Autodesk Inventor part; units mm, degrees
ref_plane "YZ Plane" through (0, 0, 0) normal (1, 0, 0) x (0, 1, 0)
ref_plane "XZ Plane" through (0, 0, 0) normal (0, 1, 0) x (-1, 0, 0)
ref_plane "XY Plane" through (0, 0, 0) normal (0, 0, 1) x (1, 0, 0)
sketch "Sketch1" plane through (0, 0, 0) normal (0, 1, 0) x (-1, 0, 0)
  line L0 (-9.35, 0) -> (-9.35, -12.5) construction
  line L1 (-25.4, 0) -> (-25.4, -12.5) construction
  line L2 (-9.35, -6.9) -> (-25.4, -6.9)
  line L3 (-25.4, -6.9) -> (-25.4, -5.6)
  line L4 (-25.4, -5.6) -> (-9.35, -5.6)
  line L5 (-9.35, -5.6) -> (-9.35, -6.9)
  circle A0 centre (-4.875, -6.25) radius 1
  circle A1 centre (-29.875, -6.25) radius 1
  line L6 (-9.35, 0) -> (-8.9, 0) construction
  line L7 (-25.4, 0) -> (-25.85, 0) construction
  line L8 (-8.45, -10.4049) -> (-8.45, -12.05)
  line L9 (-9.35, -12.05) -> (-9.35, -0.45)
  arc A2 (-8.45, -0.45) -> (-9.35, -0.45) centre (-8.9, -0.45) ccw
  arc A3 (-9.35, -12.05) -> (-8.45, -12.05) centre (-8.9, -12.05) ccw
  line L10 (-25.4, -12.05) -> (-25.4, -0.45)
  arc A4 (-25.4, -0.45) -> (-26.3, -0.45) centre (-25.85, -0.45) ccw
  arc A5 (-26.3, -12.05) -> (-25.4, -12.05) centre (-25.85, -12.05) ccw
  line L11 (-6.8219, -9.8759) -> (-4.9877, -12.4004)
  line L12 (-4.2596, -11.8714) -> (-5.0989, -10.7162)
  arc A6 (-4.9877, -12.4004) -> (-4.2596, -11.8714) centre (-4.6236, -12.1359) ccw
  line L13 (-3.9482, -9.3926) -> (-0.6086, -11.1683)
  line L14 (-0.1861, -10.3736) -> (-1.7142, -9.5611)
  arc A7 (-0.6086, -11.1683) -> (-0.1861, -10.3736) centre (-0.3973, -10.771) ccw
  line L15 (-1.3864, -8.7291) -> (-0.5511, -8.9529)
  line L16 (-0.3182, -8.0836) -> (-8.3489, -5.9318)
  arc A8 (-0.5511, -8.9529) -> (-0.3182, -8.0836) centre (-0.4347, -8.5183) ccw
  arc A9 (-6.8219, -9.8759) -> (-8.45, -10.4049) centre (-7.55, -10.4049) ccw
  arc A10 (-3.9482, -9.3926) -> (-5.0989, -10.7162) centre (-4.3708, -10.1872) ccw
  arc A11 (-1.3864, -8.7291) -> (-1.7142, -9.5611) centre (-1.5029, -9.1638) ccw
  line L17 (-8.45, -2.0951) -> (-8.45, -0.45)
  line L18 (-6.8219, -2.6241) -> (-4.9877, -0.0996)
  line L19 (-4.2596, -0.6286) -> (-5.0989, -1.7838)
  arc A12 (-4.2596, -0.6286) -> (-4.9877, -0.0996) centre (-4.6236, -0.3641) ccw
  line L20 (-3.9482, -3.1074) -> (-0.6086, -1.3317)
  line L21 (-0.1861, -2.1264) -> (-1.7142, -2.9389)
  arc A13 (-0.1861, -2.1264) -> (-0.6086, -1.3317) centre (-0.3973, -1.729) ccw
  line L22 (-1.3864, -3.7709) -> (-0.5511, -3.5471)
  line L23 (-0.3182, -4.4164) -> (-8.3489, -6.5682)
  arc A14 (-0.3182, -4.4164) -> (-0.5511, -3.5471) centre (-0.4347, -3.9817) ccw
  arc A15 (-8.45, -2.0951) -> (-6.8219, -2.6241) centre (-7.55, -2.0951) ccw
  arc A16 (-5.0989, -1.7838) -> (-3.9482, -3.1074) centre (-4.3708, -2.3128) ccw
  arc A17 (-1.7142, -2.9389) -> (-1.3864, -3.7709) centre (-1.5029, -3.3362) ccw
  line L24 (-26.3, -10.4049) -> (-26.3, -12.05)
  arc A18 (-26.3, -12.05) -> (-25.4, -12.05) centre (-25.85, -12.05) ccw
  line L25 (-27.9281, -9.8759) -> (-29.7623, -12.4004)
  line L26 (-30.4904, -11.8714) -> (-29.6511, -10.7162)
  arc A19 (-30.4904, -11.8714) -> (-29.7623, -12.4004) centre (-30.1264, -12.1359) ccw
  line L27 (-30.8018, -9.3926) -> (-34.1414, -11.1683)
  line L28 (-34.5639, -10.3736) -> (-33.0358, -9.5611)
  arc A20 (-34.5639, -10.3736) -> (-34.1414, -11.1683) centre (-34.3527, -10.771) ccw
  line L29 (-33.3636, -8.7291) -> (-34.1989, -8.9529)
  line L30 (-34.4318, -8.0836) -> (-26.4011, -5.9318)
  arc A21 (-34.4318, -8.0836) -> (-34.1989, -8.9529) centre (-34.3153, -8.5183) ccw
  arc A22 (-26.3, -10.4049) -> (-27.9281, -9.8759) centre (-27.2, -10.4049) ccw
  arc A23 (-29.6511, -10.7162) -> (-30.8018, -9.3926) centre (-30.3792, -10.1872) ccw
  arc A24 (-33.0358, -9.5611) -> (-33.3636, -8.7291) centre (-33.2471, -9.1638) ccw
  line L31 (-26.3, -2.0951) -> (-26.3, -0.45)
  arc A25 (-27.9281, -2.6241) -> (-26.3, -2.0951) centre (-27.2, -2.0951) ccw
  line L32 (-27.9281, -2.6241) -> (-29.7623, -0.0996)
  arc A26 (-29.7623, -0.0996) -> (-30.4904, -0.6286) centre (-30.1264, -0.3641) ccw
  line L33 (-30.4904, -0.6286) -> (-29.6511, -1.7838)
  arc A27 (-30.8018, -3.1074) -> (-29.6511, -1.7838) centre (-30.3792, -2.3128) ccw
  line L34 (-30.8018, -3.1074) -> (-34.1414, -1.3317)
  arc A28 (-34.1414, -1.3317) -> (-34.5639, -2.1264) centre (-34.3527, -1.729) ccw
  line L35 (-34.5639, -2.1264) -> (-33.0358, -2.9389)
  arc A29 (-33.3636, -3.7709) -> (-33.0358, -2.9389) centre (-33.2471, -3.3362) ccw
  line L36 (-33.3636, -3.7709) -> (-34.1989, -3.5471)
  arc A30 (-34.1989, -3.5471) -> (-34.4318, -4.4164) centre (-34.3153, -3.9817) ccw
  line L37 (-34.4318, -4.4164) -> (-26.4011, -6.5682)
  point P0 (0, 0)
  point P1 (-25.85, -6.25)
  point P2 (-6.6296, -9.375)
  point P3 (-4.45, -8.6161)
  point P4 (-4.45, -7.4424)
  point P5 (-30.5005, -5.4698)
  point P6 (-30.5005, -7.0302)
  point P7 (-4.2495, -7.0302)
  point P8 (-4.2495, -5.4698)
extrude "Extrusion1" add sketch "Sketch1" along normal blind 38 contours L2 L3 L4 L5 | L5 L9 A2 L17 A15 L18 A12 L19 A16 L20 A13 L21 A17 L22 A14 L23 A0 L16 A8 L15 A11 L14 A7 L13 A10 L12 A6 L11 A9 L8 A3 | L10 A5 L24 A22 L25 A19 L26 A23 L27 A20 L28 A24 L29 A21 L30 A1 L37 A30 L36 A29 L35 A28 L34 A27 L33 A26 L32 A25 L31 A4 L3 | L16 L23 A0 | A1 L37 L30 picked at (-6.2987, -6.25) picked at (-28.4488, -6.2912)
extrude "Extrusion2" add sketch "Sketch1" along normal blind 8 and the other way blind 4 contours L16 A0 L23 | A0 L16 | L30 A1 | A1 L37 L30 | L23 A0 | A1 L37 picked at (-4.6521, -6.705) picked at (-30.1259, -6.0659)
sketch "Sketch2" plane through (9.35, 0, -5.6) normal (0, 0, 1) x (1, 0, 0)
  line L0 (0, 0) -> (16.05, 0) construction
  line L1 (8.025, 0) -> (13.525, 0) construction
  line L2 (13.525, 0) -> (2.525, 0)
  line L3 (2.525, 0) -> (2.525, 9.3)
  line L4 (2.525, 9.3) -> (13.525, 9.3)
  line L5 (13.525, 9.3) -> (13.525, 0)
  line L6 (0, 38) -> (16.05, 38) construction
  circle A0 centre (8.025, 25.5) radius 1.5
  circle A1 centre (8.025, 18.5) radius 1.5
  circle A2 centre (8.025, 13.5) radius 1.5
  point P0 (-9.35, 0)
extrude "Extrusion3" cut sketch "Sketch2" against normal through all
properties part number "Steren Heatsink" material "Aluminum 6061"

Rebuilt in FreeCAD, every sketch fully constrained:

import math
import FreeCAD as App
import Part
import Sketcher
from FreeCAD import Vector
Q = App.Units.Quantity


def add_polygon(sketch, points):
    """Adds a closed chain of lines whose ends are joined by coincident constraints."""
    first, n = sketch.GeometryCount, len(points)
    for a, b in zip(points, points[1:] + points[:1]):
        sketch.addGeometry(Part.LineSegment(App.Vector(*a, 0), App.Vector(*b, 0)), False)
    for i in range(n):
        sketch.addConstraint(Sketcher.Constraint("Coincident", first + i, 2, first + (i + 1) % n, 1))

doc = App.newDocument("Part")
body = doc.addObject("PartDesign::Body", "Body")

sketch1 = body.newObject("Sketcher::SketchObject", "Sketch")
sketch1.AttachmentSupport = (doc.getObject("XZ_Plane"), [""])
sketch1.MapMode = "FlatFace"
sketch1.addGeometry([
    Part.LineSegment(Vector(25.4, -6.9, 0), Vector(9.35, -6.9, 0)),
    Part.LineSegment(Vector(9.35, -6.9, 0), Vector(9.35, -12.05, 0)),
    Part.ArcOfCircle(Part.Circle(Vector(8.9, -12.05, 0), Vector(0, 0, 1), 0.45), math.radians(180), math.radians(360)),
    Part.LineSegment(Vector(8.45, -12.05, 0), Vector(8.45, -10.4, 0)),
    Part.ArcOfCircle(Part.Circle(Vector(7.55, -10.4, 0), Vector(0, 0, 1), 0.9), math.radians(0), math.radians(144)),
    Part.LineSegment(Vector(6.82, -9.88, 0), Vector(4.99, -12.4, 0)),
    Part.ArcOfCircle(Part.Circle(Vector(4.62, -12.14, 0), Vector(0, 0, 1), 0.45), math.radians(144), math.radians(324)),
    Part.LineSegment(Vector(4.26, -11.87, 0), Vector(5.1, -10.72, 0)),
    Part.ArcOfCircle(Part.Circle(Vector(4.37, -10.19, 0), Vector(0, 0, 1), 0.9), math.radians(-36), math.radians(118)),
    Part.LineSegment(Vector(3.95, -9.39, 0), Vector(0.61, -11.17, 0)),
    Part.ArcOfCircle(Part.Circle(Vector(0.4, -10.77, 0), Vector(0, 0, 1), 0.45), math.radians(118), math.radians(298)),
    Part.LineSegment(Vector(0.19, -10.37, 0), Vector(1.71, -9.56, 0)),
    Part.ArcOfCircle(Part.Circle(Vector(1.5, -9.16, 0), Vector(0, 0, 1), 0.45), math.radians(-62), math.radians(105)),
    Part.LineSegment(Vector(1.39, -8.73, 0), Vector(0.55, -8.95, 0)),
    Part.ArcOfCircle(Part.Circle(Vector(0.43, -8.52, 0), Vector(0, 0, 1), 0.45), math.radians(105), math.radians(285)),
    Part.LineSegment(Vector(0.32, -8.08, 0), Vector(4.25, -7.03, 0)),
    Part.ArcOfCircle(Part.Circle(Vector(4.88, -6.25, 0), Vector(0, 0, 1), 1), math.radians(-129), math.radians(129)),
    Part.LineSegment(Vector(4.25, -5.47, 0), Vector(0.32, -4.42, 0)),
    Part.ArcOfCircle(Part.Circle(Vector(0.43, -3.98, 0), Vector(0, 0, 1), 0.45), math.radians(75), math.radians(255)),
    Part.LineSegment(Vector(0.55, -3.55, 0), Vector(1.39, -3.77, 0)),
    Part.ArcOfCircle(Part.Circle(Vector(1.5, -3.34, 0), Vector(0, 0, 1), 0.45), math.radians(-105), math.radians(62)),
    Part.LineSegment(Vector(1.71, -2.94, 0), Vector(0.19, -2.13, 0)),
    Part.ArcOfCircle(Part.Circle(Vector(0.4, -1.73, 0), Vector(0, 0, 1), 0.45), math.radians(62), math.radians(242)),
    Part.LineSegment(Vector(0.61, -1.33, 0), Vector(3.95, -3.11, 0)),
    Part.ArcOfCircle(Part.Circle(Vector(4.37, -2.31, 0), Vector(0, 0, 1), 0.9), math.radians(-118), math.radians(36)),
    Part.LineSegment(Vector(5.1, -1.78, 0), Vector(4.26, -0.63, 0)),
    Part.ArcOfCircle(Part.Circle(Vector(4.62, -0.36, 0), Vector(0, 0, 1), 0.45), math.radians(36), math.radians(216)),
    Part.LineSegment(Vector(4.99, -0.1, 0), Vector(6.82, -2.62, 0)),
    Part.ArcOfCircle(Part.Circle(Vector(7.55, -2.1, 0), Vector(0, 0, 1), 0.9), math.radians(-144), math.radians(0)),
    Part.LineSegment(Vector(8.45, -2.1, 0), Vector(8.45, -0.45, 0)),
    Part.ArcOfCircle(Part.Circle(Vector(8.9, -0.45, 0), Vector(0, 0, 1), 0.45), math.radians(0), math.radians(180)),
    Part.LineSegment(Vector(9.35, -0.45, 0), Vector(9.35, -5.6, 0)),
    Part.LineSegment(Vector(9.35, -5.6, 0), Vector(25.4, -5.6, 0)),
    Part.LineSegment(Vector(25.4, -5.6, 0), Vector(25.4, -0.45, 0)),
    Part.ArcOfCircle(Part.Circle(Vector(25.85, -0.45, 0), Vector(0, 0, 1), 0.45), math.radians(0), math.radians(180)),
    Part.LineSegment(Vector(26.3, -0.45, 0), Vector(26.3, -2.1, 0)),
    Part.ArcOfCircle(Part.Circle(Vector(27.2, -2.1, 0), Vector(0, 0, 1), 0.9), math.radians(180), math.radians(324)),
    Part.LineSegment(Vector(27.93, -2.62, 0), Vector(29.76, -0.1, 0)),
    Part.ArcOfCircle(Part.Circle(Vector(30.13, -0.36, 0), Vector(0, 0, 1), 0.45), math.radians(-36), math.radians(144)),
    Part.LineSegment(Vector(30.49, -0.63, 0), Vector(29.65, -1.78, 0)),
    Part.ArcOfCircle(Part.Circle(Vector(30.38, -2.31, 0), Vector(0, 0, 1), 0.9), math.radians(144), math.radians(298)),
    Part.LineSegment(Vector(30.8, -3.11, 0), Vector(34.14, -1.33, 0)),
    Part.ArcOfCircle(Part.Circle(Vector(34.35, -1.73, 0), Vector(0, 0, 1), 0.45), math.radians(-62), math.radians(118)),
    Part.LineSegment(Vector(34.56, -2.13, 0), Vector(33.04, -2.94, 0)),
    Part.ArcOfCircle(Part.Circle(Vector(33.25, -3.34, 0), Vector(0, 0, 1), 0.45), math.radians(118), math.radians(285)),
    Part.LineSegment(Vector(33.36, -3.77, 0), Vector(34.2, -3.55, 0)),
    Part.ArcOfCircle(Part.Circle(Vector(34.32, -3.98, 0), Vector(0, 0, 1), 0.45), math.radians(-75), math.radians(105)),
    Part.LineSegment(Vector(34.43, -4.42, 0), Vector(30.5, -5.47, 0)),
    Part.ArcOfCircle(Part.Circle(Vector(29.88, -6.25, 0), Vector(0, 0, 1), 1), math.radians(51), math.radians(309)),
    Part.LineSegment(Vector(30.5, -7.03, 0), Vector(34.43, -8.08, 0)),
    Part.ArcOfCircle(Part.Circle(Vector(34.32, -8.52, 0), Vector(0, 0, 1), 0.45), math.radians(-105), math.radians(75)),
    Part.LineSegment(Vector(34.2, -8.95, 0), Vector(33.36, -8.73, 0)),
    Part.ArcOfCircle(Part.Circle(Vector(33.25, -9.16, 0), Vector(0, 0, 1), 0.45), math.radians(75), math.radians(242)),
    Part.LineSegment(Vector(33.04, -9.56, 0), Vector(34.56, -10.37, 0)),
    Part.ArcOfCircle(Part.Circle(Vector(34.35, -10.77, 0), Vector(0, 0, 1), 0.45), math.radians(-118), math.radians(62)),
    Part.LineSegment(Vector(34.14, -11.17, 0), Vector(30.8, -9.39, 0)),
    Part.ArcOfCircle(Part.Circle(Vector(30.38, -10.19, 0), Vector(0, 0, 1), 0.9), math.radians(62), math.radians(216)),
    Part.LineSegment(Vector(29.65, -10.72, 0), Vector(30.49, -11.87, 0)),
    Part.ArcOfCircle(Part.Circle(Vector(30.13, -12.14, 0), Vector(0, 0, 1), 0.45), math.radians(-144), math.radians(36)),
    Part.LineSegment(Vector(29.76, -12.4, 0), Vector(27.93, -9.88, 0)),
    Part.ArcOfCircle(Part.Circle(Vector(27.2, -10.4, 0), Vector(0, 0, 1), 0.9), math.radians(36), math.radians(180)),
    Part.LineSegment(Vector(26.3, -10.4, 0), Vector(26.3, -12.05, 0)),
    Part.ArcOfCircle(Part.Circle(Vector(25.85, -12.05, 0), Vector(0, 0, 1), 0.45), math.radians(180), math.radians(360)),
    Part.LineSegment(Vector(25.4, -12.05, 0), Vector(25.4, -6.9, 0)),
], False)
sketch1.addConstraint([
    Sketcher.Constraint("Coincident", 0, 2, 1, 1),
    Sketcher.Constraint("Tangent", 1, 2, 2, 2),
    Sketcher.Constraint("Tangent", 2, 1, 3, 1),
    Sketcher.Constraint("Tangent", 3, 2, 4, 1),
    Sketcher.Constraint("Tangent", 4, 2, 5, 1),
    Sketcher.Constraint("Tangent", 5, 2, 6, 2),
    Sketcher.Constraint("Tangent", 6, 1, 7, 1),
    Sketcher.Constraint("Tangent", 7, 2, 8, 1),
    Sketcher.Constraint("Tangent", 8, 2, 9, 1),
    Sketcher.Constraint("Tangent", 9, 2, 10, 2),
    Sketcher.Constraint("Tangent", 10, 1, 11, 1),
    Sketcher.Constraint("Tangent", 11, 2, 12, 1),
    Sketcher.Constraint("Tangent", 12, 2, 13, 1),
    Sketcher.Constraint("Tangent", 13, 2, 14, 2),
    Sketcher.Constraint("Tangent", 14, 1, 15, 1),
    Sketcher.Constraint("Coincident", 15, 2, 16, 1),
    Sketcher.Constraint("Coincident", 16, 2, 17, 1),
    Sketcher.Constraint("Tangent", 17, 2, 18, 2),
    Sketcher.Constraint("Tangent", 18, 1, 19, 1),
    Sketcher.Constraint("Tangent", 19, 2, 20, 1),
    Sketcher.Constraint("Tangent", 20, 2, 21, 1),
    Sketcher.Constraint("Tangent", 21, 2, 22, 2),
    Sketcher.Constraint("Tangent", 22, 1, 23, 1),
    Sketcher.Constraint("Tangent", 23, 2, 24, 1),
    Sketcher.Constraint("Tangent", 24, 2, 25, 1),
    Sketcher.Constraint("Tangent", 25, 2, 26, 2),
    Sketcher.Constraint("Tangent", 26, 1, 27, 1),
    Sketcher.Constraint("Tangent", 27, 2, 28, 1),
    Sketcher.Constraint("Tangent", 28, 2, 29, 1),
    Sketcher.Constraint("Tangent", 29, 2, 30, 2),
    Sketcher.Constraint("Tangent", 30, 1, 31, 1),
    Sketcher.Constraint("Coincident", 31, 2, 32, 1),
    Sketcher.Constraint("Coincident", 32, 2, 33, 1),
    Sketcher.Constraint("Tangent", 33, 2, 34, 2),
    Sketcher.Constraint("Tangent", 34, 1, 35, 1),
    Sketcher.Constraint("Tangent", 35, 2, 36, 1),
    Sketcher.Constraint("Tangent", 36, 2, 37, 1),
    Sketcher.Constraint("Tangent", 37, 2, 38, 2),
    Sketcher.Constraint("Tangent", 38, 1, 39, 1),
    Sketcher.Constraint("Tangent", 39, 2, 40, 1),
    Sketcher.Constraint("Tangent", 40, 2, 41, 1),
    Sketcher.Constraint("Tangent", 41, 2, 42, 2),
    Sketcher.Constraint("Tangent", 42, 1, 43, 1),
    Sketcher.Constraint("Tangent", 43, 2, 44, 1),
    Sketcher.Constraint("Tangent", 44, 2, 45, 1),
    Sketcher.Constraint("Tangent", 45, 2, 46, 2),
    Sketcher.Constraint("Tangent", 46, 1, 47, 1),
    Sketcher.Constraint("Coincident", 47, 2, 48, 1),
    Sketcher.Constraint("Coincident", 48, 2, 49, 1),
    Sketcher.Constraint("Tangent", 49, 2, 50, 2),
    Sketcher.Constraint("Tangent", 50, 1, 51, 1),
    Sketcher.Constraint("Tangent", 51, 2, 52, 1),
    Sketcher.Constraint("Tangent", 52, 2, 53, 1),
    Sketcher.Constraint("Tangent", 53, 2, 54, 2),
    Sketcher.Constraint("Tangent", 54, 1, 55, 1),
    Sketcher.Constraint("Tangent", 55, 2, 56, 1),
    Sketcher.Constraint("Tangent", 56, 2, 57, 1),
    Sketcher.Constraint("Tangent", 57, 2, 58, 2),
    Sketcher.Constraint("Tangent", 58, 1, 59, 1),
    Sketcher.Constraint("Tangent", 59, 2, 60, 1),
    Sketcher.Constraint("Tangent", 60, 2, 61, 1),
    Sketcher.Constraint("Tangent", 61, 2, 62, 2),
    Sketcher.Constraint("Tangent", 62, 1, 63, 1),
    Sketcher.Constraint("Coincident", 63, 2, 0, 1),
    Sketcher.Constraint("Horizontal", 0),
    Sketcher.Constraint("Vertical", 1),
    Sketcher.Constraint("Vertical", 3),
    Sketcher.Constraint("Vertical", 29),
    Sketcher.Constraint("Vertical", 31),
    Sketcher.Constraint("Horizontal", 32),
    Sketcher.Constraint("Vertical", 33),
    Sketcher.Constraint("Vertical", 35),
    Sketcher.Constraint("Vertical", 61),
    Sketcher.Constraint("Vertical", 63),
    Sketcher.Constraint("Equal", 2, 6),
    Sketcher.Constraint("Equal", 4, 8),
    Sketcher.Constraint("Equal", 6, 10),
    Sketcher.Constraint("Equal", 10, 12),
    Sketcher.Constraint("Equal", 12, 14),
    Sketcher.Constraint("Equal", 14, 18),
    Sketcher.Constraint("Equal", 18, 20),
    Sketcher.Constraint("Equal", 20, 22),
    Sketcher.Constraint("Equal", 8, 24),
    Sketcher.Constraint("Equal", 22, 26),
    Sketcher.Constraint("Equal", 24, 28),
    Sketcher.Constraint("Equal", 26, 30),
    Sketcher.Constraint("Equal", 30, 34),
    Sketcher.Constraint("Equal", 28, 36),
    Sketcher.Constraint("Equal", 34, 38),
    Sketcher.Constraint("Equal", 36, 40),
    Sketcher.Constraint("Equal", 38, 42),
    Sketcher.Constraint("Equal", 42, 44),
    Sketcher.Constraint("Equal", 44, 46),
    Sketcher.Constraint("Equal", 16, 48),
    Sketcher.Constraint("Equal", 46, 50),
    Sketcher.Constraint("Equal", 50, 52),
    Sketcher.Constraint("Equal", 52, 54),
    Sketcher.Constraint("Equal", 40, 56),
    Sketcher.Constraint("Equal", 54, 58),
    Sketcher.Constraint("Equal", 56, 60),
    Sketcher.Constraint("Equal", 58, 62),
    Sketcher.Constraint("Parallel", 5, 7),
    Sketcher.Constraint("Parallel", 9, 11),
    Sketcher.Constraint("Parallel", 13, 15),
    Sketcher.Constraint("Parallel", 17, 19),
    Sketcher.Constraint("Parallel", 21, 23),
    Sketcher.Constraint("Parallel", 25, 27),
    Sketcher.Constraint("Parallel", 7, 37),
    Sketcher.Constraint("Parallel", 37, 39),
    Sketcher.Constraint("Parallel", 11, 41),
    Sketcher.Constraint("Parallel", 41, 43),
    Sketcher.Constraint("Parallel", 15, 45),
    Sketcher.Constraint("Parallel", 45, 47),
    Sketcher.Constraint("Parallel", 19, 49),
    Sketcher.Constraint("Parallel", 49, 51),
    Sketcher.Constraint("Parallel", 23, 53),
    Sketcher.Constraint("Parallel", 53, 55),
    Sketcher.Constraint("Parallel", 27, 57),
    Sketcher.Constraint("Parallel", 57, 59),
    Sketcher.Constraint("Horizontal", 30, 3, 34, 3),
    Sketcher.Constraint("Horizontal", 28, 3, 36, 3),
    Sketcher.Constraint("Horizontal", 26, 3, 38, 3),
    Sketcher.Constraint("Horizontal", 24, 3, 40, 3),
    Sketcher.Constraint("Horizontal", 22, 3, 42, 3),
    Sketcher.Constraint("Horizontal", 20, 3, 44, 3),
    Sketcher.Constraint("Horizontal", 18, 3, 46, 3),
    Sketcher.Constraint("Horizontal", 16, 3, 48, 3),
    Sketcher.Constraint("Horizontal", 14, 3, 50, 3),
    Sketcher.Constraint("Horizontal", 12, 3, 52, 3),
    Sketcher.Constraint("Horizontal", 10, 3, 54, 3),
    Sketcher.Constraint("Horizontal", 8, 3, 56, 3),
    Sketcher.Constraint("Horizontal", 6, 3, 58, 3),
    Sketcher.Constraint("Horizontal", 4, 3, 60, 3),
    Sketcher.Constraint("Horizontal", 2, 3, 62, 3),
    Sketcher.Constraint("Horizontal", 27, 2, 36, 2),
    Sketcher.Constraint("Horizontal", 23, 2, 40, 2),
    Sketcher.Constraint("Horizontal", 19, 2, 44, 2),
    Sketcher.Constraint("Horizontal", 16, 2, 47, 2),
    Sketcher.Constraint("Horizontal", 15, 2, 48, 2),
    Sketcher.Constraint("Vertical", 14, 3, 18, 3),
    Sketcher.Constraint("Vertical", 12, 3, 20, 3),
    Sketcher.Constraint("Vertical", 10, 3, 22, 3),
    Sketcher.Constraint("Vertical", 8, 3, 24, 3),
    Sketcher.Constraint("Vertical", 6, 3, 26, 3),
    Sketcher.Constraint("Vertical", 4, 3, 28, 3),
    Sketcher.Constraint("Vertical", 15, 2, 16, 2),
    Sketcher.Constraint("Equal", 3, 29),
    Sketcher.Constraint("Equal", 1, 31),
    Sketcher.Constraint("Radius", 16, 1.0),
    Sketcher.Constraint("Radius", 4, 0.9),
    Sketcher.Constraint("Angle", 5, Q("-126.0006 deg")),
    Sketcher.Constraint("Angle", 9, Q("-152 deg")),
    Sketcher.Constraint("Angle", 13, Q("-165.0011 deg")),
    Sketcher.Constraint("Radius", 2, 0.45),
    Sketcher.Constraint("DistanceX", 0, 2, 0, 1, 16.05),
    Sketcher.Constraint("DistanceY", 1, 2, 1, 1, 5.15),
    Sketcher.Constraint("DistanceX", -1, 1, 2, 3, 8.9),
    Sketcher.Constraint("DistanceY", 0, 2, -1, 1, 6.9),
    Sketcher.Constraint("DistanceY", 31, 2, -1, 1, 5.6),
    Sketcher.Constraint("Distance", 15, 4.07),
    Sketcher.Constraint("DistanceY", 3, 1, 3, 2, 1.645),
    Sketcher.Constraint("Distance", 7, 1.428),
    Sketcher.Constraint("DistanceY", 6, 3, -1, 1, 12.136),
    Sketcher.Constraint("DistanceY", 10, 3, -1, 1, 10.771),
    Sketcher.Constraint("DistanceX", -1, 1, 12, 3, 1.503),
    Sketcher.Constraint("DistanceX", -1, 1, 16, 3, 4.875),
])
pad1 = body.newObject("PartDesign::Pad", "Pad")
pad1.Profile = sketch1
pad1.Length = 38
pad1.Reversed = True

sketch2 = body.newObject("Sketcher::SketchObject", "Sketch001")
sketch2.AttachmentSupport = (doc.getObject("XZ_Plane"), [""])
sketch2.MapMode = "FlatFace"
sketch2.addGeometry([
    Part.Circle(Vector(4.9, -6.2, 0), Vector(0, 0, 1), 1),
    Part.Circle(Vector(29.9, -6.2, 0), Vector(0, 0, 1), 1),
], False)
sketch2.addConstraint([
    Sketcher.Constraint("Equal", 0, 1),
    Sketcher.Constraint("Horizontal", 0, 3, 1, 3),
    Sketcher.Constraint("Diameter", 0, 2.0),
    Sketcher.Constraint("DistanceX", 0, 3, 1, 3, 25.0),
    Sketcher.Constraint("DistanceY", 0, 3, -1, 1, 6.25),
    Sketcher.Constraint("DistanceX", -1, 1, 0, 3, 4.875),
])
pad2 = body.newObject("PartDesign::Pad", "Pad001")
pad2.Profile = sketch2
pad2.Type = "TwoLengths"
pad2.Length = 8
pad2.Length2 = 4
pad2.Reversed = True

sketch3 = body.newObject("Sketcher::SketchObject", "Sketch002")
sketch3.AttachmentSupport = (doc.getObject("XY_Plane"), [""])
sketch3.MapMode = "FlatFace"
sketch3.AttachmentOffset = App.Placement(Vector(0, 0, -5.6), App.Rotation())
add_polygon(sketch3, [(11.9, 0), (22.9, 0), (22.9, 9.3), (11.9, 9.3)])
sketch3.addGeometry(Part.Circle(Vector(17.4, 25.5, 0), Vector(0, 0, 1), 1.5), False)
sketch3.addGeometry(Part.Circle(Vector(17.4, 18.5, 0), Vector(0, 0, 1), 1.5), False)
sketch3.addGeometry(Part.Circle(Vector(17.4, 13.5, 0), Vector(0, 0, 1), 1.5), False)
sketch3.addConstraint([
    Sketcher.Constraint("Horizontal", 0),
    Sketcher.Constraint("Vertical", 1),
    Sketcher.Constraint("Horizontal", 2),
    Sketcher.Constraint("Vertical", 3),
    Sketcher.Constraint("Equal", 4, 5),
    Sketcher.Constraint("Equal", 5, 6),
    Sketcher.Constraint("PointOnObject", 0, 2, -1),
    Sketcher.Constraint("Vertical", 4, 3, 5, 3),
    Sketcher.Constraint("Vertical", 5, 3, 6, 3),
    Sketcher.Constraint("Diameter", 4, 3.0),
    Sketcher.Constraint("DistanceX", 0, 1, 0, 2, 11.0),
    Sketcher.Constraint("DistanceY", 1, 1, 1, 2, 9.3),
    Sketcher.Constraint("DistanceY", 5, 3, 4, 3, 7.0),
    Sketcher.Constraint("DistanceY", 6, 3, 5, 3, 5.0),
    Sketcher.Constraint("DistanceY", -1, 1, 4, 3, 25.5),
    Sketcher.Constraint("DistanceX", 6, 3, 0, 2, 5.5),
    Sketcher.Constraint("DistanceX", -1, 1, 4, 3, 17.375),
])
pocket1 = body.newObject("PartDesign::Pocket", "Pocket")
pocket1.Profile = sketch3
pocket1.Type = "ThroughAll"

doc.recompute()
